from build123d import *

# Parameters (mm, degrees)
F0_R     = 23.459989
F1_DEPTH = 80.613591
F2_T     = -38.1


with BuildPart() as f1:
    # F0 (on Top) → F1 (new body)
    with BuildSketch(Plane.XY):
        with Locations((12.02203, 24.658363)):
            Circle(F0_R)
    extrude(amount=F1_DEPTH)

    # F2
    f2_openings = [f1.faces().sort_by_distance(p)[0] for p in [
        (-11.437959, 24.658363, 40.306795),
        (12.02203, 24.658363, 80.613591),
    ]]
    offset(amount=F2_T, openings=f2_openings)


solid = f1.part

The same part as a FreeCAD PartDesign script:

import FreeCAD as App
import Part
import Sketcher


def faces_at(feature, points):
    """Names of the faces that lie closest to the given points."""
    faces = feature.Shape.Faces
    near = lambda p: min(range(len(faces)), key=lambda i: faces[i].distToShape(Part.Vertex(*p))[0])
    return sorted({f"Face{near(p) + 1}" for p in points})

doc = App.newDocument("Part")
params = doc.addObject("Spreadsheet::Sheet", "Params")
for row, (alias, value) in enumerate([
    ("pad1_length", "80.613591 mm"),
    ("thickness_wall", "1.5 in"),
], start=1):
    params.set(f"A{row}", alias)
    params.set(f"B{row}", "=" + value)
    params.setAlias(f"B{row}", alias)

body = doc.addObject("PartDesign::Body", "Body")

sketch1 = body.newObject("Sketcher::SketchObject", "Sketch")
sketch1.AttachmentSupport = (doc.getObject("XY_Plane"), [""])
sketch1.MapMode = "FlatFace"
sketch1.addGeometry(Part.Circle(App.Vector(12, 25, 0), App.Vector(0, 0, 1), 23), False)
sketch1.addConstraint(Sketcher.Constraint("Diameter", 0, 46.919978))
sketch1.addConstraint(Sketcher.Constraint("DistanceX", -1, 1, 0, 3, 12.02203))
sketch1.addConstraint(Sketcher.Constraint("DistanceY", -1, 1, 0, 3, 24.658363))
pad1 = body.newObject("PartDesign::Pad", "Pad")
pad1.Profile = sketch1
pad1.setExpression("Length", "Params.pad1_length")
doc.recompute()

thickness = body.newObject("PartDesign::Thickness", "Thickness")
thickness.Base = (pad1, faces_at(pad1, [(-11.438, 24.658, 40.307), (12.022, 24.658, 80.614)]))
thickness.setExpression("Value", "Params.thickness_wall")
thickness.Reversed = True
thickness.Join = "Arc"

doc.recompute()
